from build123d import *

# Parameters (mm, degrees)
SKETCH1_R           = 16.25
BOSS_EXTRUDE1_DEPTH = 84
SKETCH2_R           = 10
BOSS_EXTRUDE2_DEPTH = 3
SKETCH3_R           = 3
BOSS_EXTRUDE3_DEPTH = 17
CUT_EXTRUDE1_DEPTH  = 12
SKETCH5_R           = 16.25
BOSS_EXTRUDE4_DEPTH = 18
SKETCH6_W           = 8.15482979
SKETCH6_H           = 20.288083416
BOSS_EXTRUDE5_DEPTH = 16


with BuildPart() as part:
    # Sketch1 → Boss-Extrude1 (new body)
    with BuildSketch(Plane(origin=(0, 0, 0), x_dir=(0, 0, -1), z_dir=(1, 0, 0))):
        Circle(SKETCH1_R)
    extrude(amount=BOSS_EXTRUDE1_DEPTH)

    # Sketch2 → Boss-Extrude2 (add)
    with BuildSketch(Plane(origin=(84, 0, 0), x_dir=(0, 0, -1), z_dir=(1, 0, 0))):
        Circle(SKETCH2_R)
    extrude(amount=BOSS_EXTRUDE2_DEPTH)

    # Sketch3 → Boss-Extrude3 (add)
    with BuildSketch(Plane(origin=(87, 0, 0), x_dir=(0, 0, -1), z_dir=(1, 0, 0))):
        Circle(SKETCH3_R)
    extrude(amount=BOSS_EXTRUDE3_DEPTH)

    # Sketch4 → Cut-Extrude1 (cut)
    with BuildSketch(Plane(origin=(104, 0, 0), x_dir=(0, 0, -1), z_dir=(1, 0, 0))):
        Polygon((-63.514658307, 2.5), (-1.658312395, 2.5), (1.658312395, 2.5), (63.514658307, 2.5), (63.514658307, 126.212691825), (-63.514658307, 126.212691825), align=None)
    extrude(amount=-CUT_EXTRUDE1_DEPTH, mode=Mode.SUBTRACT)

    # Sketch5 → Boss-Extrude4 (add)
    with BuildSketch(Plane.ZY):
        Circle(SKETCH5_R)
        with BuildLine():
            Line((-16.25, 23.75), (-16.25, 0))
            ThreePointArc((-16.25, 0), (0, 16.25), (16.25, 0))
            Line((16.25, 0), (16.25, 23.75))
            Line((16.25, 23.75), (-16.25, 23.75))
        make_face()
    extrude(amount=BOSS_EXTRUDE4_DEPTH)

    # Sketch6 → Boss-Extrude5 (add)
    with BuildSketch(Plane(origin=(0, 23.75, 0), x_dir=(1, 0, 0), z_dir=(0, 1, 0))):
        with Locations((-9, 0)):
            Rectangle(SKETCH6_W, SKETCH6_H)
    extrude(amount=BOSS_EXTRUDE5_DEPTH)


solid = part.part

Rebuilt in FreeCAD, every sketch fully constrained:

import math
import FreeCAD as App
import Part
import Sketcher

doc = App.newDocument("Part")
body = doc.addObject("PartDesign::Body", "Body")

# Sketch on YZ plane
sketch1 = body.newObject("Sketcher::SketchObject", "Sketch")
sketch1.AttachmentSupport = (doc.getObject("YZ_Plane"), [""])
sketch1.MapMode = "FlatFace"
sketch1.addGeometry(Part.Circle(App.Vector(0, 0, 0), App.Vector(0, 0, 1), 16.25), False)
sketch1.addConstraint([
    Sketcher.Constraint("Coincident", 0, 3, -1, 1),
    Sketcher.Constraint("Diameter", 0, 32.5),
])
pad1 = body.newObject("PartDesign::Pad", "Pad")
pad1.Profile = sketch1
pad1.Length = 84

# Sketch on YZ plane
sketch2 = body.newObject("Sketcher::SketchObject", "Sketch001")
sketch2.AttachmentSupport = (doc.getObject("YZ_Plane"), [""])
sketch2.MapMode = "FlatFace"
sketch2.AttachmentOffset = App.Placement(App.Vector(0, 0, 84), App.Rotation())
sketch2.addGeometry(Part.Circle(App.Vector(0, 0, 0), App.Vector(0, 0, 1), 10), False)
sketch2.addConstraint([
    Sketcher.Constraint("Coincident", 0, 3, -1, 1),
    Sketcher.Constraint("Diameter", 0, 20.0),
])
pad2 = body.newObject("PartDesign::Pad", "Pad001")
pad2.Profile = sketch2
pad2.Length = 3

# Sketch on YZ plane
sketch3 = body.newObject("Sketcher::SketchObject", "Sketch002")
sketch3.AttachmentSupport = (doc.getObject("YZ_Plane"), [""])
sketch3.MapMode = "FlatFace"
sketch3.AttachmentOffset = App.Placement(App.Vector(0, 0, 87), App.Rotation())
sketch3.addGeometry(Part.Circle(App.Vector(0, 0, 0), App.Vector(0, 0, 1), 3), False)
sketch3.addConstraint([
    Sketcher.Constraint("Coincident", 0, 3, -1, 1),
    Sketcher.Constraint("Diameter", 0, 6.0),
])
pad3 = body.newObject("PartDesign::Pad", "Pad002")
pad3.Profile = sketch3
pad3.Length = 17

# Sketch on YZ plane
sketch4 = body.newObject("Sketcher::SketchObject", "Sketch003")
sketch4.AttachmentSupport = (doc.getObject("YZ_Plane"), [""])
sketch4.MapMode = "FlatFace"
sketch4.AttachmentOffset = App.Placement(App.Vector(0, 0, 104), App.Rotation())
sketch4.addGeometry([
    Part.LineSegment(App.Vector(2.5, 63.514658, 0), App.Vector(2.5, -63.514658, 0)),
    Part.LineSegment(App.Vector(2.5, -63.514658, 0), App.Vector(126.212692, -63.514658, 0)),
    Part.LineSegment(App.Vector(126.212692, -63.514658, 0), App.Vector(126.212692, 63.514658, 0)),
    Part.LineSegment(App.Vector(126.212692, 63.514658, 0), App.Vector(2.5, 63.514658, 0)),
], False)
sketch4.addConstraint([
    Sketcher.Constraint("Coincident", 0, 2, 1, 1),
    Sketcher.Constraint("Coincident", 1, 2, 2, 1),
    Sketcher.Constraint("Coincident", 2, 2, 3, 1),
    Sketcher.Constraint("Coincident", 3, 2, 0, 1),
    Sketcher.Constraint("Vertical", 0),
    Sketcher.Constraint("Horizontal", 1),
    Sketcher.Constraint("Vertical", 2),
    Sketcher.Constraint("Horizontal", 3),
    Sketcher.Constraint("DistanceX", -1, 1, 0, 2, 2.5),
    Sketcher.Constraint("DistanceX", 1, 1, 1, 2, 123.712692),
    Sketcher.Constraint("DistanceY", 0, 2, 0, 1, 127.029317),
    Sketcher.Constraint("DistanceY", 0, 2, -1, 1, 63.514658),
])
pocket1 = body.newObject("PartDesign::Pocket", "Pocket")
pocket1.Profile = sketch4
pocket1.Length = 12

# Sketch on YZ plane
sketch5 = body.newObject("Sketcher::SketchObject", "Sketch004")
sketch5.AttachmentSupport = (doc.getObject("YZ_Plane"), [""])
sketch5.MapMode = "FlatFace"
sketch5.addGeometry([
    Part.ArcOfCircle(Part.Circle(App.Vector(0, 0, 0), App.Vector(0, 0, 1), 16.25), math.radians(90), math.radians(270)),
    Part.LineSegment(App.Vector(0, 16.25, 0), App.Vector(23.75, 16.25, 0)),
    Part.LineSegment(App.Vector(23.75, 16.25, 0), App.Vector(23.75, -16.25, 0)),
    Part.LineSegment(App.Vector(23.75, -16.25, 0), App.Vector(0, -16.25, 0)),
], False)
sketch5.addConstraint([
    Sketcher.Constraint("Tangent", 0, 1, 1, 1),
    Sketcher.Constraint("Coincident", 1, 2, 2, 1),
    Sketcher.Constraint("Coincident", 2, 2, 3, 1),
    Sketcher.Constraint("Tangent", 3, 2, 0, 2),
    Sketcher.Constraint("Horizontal", 1),
    Sketcher.Constraint("Vertical", 2),
    Sketcher.Constraint("Horizontal", 3),
    Sketcher.Constraint("Coincident", 0, 3, -1, 1),
    Sketcher.Constraint("Radius", 0, 16.25),
    Sketcher.Constraint("DistanceX", 1, 1, 1, 2, 23.75),
])
pad4 = body.newObject("PartDesign::Pad", "Pad003")
pad4.Profile = sketch5
pad4.Length = 18
pad4.Reversed = True

# Sketch on XZ plane
sketch6 = body.newObject("Sketcher::SketchObject", "Sketch005")
sketch6.AttachmentSupport = (doc.getObject("XZ_Plane"), [""])
sketch6.MapMode = "FlatFace"
sketch6.AttachmentOffset = App.Placement(App.Vector(0, 0, -23.75), App.Rotation())
sketch6.addGeometry([
    Part.LineSegment(App.Vector(-13.077415, -10.144042, 0), App.Vector(-13.077415, 10.144042, 0)),
    Part.LineSegment(App.Vector(-13.077415, 10.144042, 0), App.Vector(-4.922585, 10.144042, 0)),
    Part.LineSegment(App.Vector(-4.922585, 10.144042, 0), App.Vector(-4.922585, -10.144042, 0)),
    Part.LineSegment(App.Vector(-4.922585, -10.144042, 0), App.Vector(-13.077415, -10.144042, 0)),
], False)
sketch6.addConstraint([
    Sketcher.Constraint("Coincident", 0, 2, 1, 1),
    Sketcher.Constraint("Coincident", 1, 2, 2, 1),
    Sketcher.Constraint("Coincident", 2, 2, 3, 1),
    Sketcher.Constraint("Coincident", 3, 2, 0, 1),
    Sketcher.Constraint("Vertical", 0),
    Sketcher.Constraint("Horizontal", 1),
    Sketcher.Constraint("Vertical", 2),
    Sketcher.Constraint("Horizontal", 3),
    Sketcher.Constraint("DistanceX", 1, 1, 1, 2, 8.15483),
    Sketcher.Constraint("DistanceY", 0, 1, 0, 2, 20.288083),
    Sketcher.Constraint("DistanceY", -1, 1, 0, 2, 10.144042),
    Sketcher.Constraint("DistanceX", 0, 2, -1, 1, 13.077415),
])
pad5 = body.newObject("PartDesign::Pad", "Pad004")
pad5.Profile = sketch6
pad5.Length = 16
pad5.Reversed = True

doc.recompute()
